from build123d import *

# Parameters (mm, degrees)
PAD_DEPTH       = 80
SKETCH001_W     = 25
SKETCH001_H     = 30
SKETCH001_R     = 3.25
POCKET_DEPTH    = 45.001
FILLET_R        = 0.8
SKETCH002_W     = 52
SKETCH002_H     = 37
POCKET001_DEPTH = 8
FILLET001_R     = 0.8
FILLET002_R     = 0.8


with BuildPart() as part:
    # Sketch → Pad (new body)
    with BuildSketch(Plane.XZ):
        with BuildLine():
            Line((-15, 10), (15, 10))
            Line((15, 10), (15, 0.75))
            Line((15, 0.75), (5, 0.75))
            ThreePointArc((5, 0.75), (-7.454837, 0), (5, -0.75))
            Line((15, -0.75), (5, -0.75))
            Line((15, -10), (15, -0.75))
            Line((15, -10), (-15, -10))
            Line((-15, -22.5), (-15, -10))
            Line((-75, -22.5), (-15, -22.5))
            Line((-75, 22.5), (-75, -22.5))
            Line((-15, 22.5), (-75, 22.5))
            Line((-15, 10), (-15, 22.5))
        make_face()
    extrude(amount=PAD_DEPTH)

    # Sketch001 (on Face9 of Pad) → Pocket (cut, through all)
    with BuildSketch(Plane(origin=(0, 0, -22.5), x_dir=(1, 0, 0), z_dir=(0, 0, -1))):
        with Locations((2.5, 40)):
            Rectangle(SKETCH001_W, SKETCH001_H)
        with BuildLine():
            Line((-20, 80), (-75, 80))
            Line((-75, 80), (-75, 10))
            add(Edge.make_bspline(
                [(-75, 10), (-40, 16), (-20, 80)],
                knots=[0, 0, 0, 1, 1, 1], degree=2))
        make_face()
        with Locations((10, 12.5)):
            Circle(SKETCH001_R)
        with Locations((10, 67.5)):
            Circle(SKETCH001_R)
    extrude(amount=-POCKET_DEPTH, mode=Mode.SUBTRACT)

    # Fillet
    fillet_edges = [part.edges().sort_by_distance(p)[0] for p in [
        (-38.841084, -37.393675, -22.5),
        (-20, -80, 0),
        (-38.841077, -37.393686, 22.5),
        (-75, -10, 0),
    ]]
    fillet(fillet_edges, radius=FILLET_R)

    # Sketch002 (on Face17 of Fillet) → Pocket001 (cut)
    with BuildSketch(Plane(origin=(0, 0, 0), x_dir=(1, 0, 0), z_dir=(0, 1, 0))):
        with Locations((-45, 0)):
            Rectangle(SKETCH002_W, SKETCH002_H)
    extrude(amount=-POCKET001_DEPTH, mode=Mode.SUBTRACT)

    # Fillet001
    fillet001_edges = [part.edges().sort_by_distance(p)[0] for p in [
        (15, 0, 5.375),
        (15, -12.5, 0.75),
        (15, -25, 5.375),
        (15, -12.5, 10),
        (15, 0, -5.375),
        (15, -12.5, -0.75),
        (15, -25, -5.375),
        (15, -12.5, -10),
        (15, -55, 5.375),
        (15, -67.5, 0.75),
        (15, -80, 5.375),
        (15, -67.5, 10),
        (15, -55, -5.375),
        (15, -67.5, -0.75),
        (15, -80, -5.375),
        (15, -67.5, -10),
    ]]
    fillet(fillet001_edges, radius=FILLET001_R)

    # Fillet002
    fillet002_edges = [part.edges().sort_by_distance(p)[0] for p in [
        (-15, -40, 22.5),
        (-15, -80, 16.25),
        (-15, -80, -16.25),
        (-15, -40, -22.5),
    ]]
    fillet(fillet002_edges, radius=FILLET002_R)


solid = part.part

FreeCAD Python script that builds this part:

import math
import FreeCAD as App
import Part
import Sketcher

V = App.Vector


def edges_at(feature, points):
    """Names of the edges that pass closest to the given points."""
    edges = feature.Shape.Edges
    near = lambda p: min(range(len(edges)), key=lambda i: edges[i].distToShape(Part.Vertex(*p))[0])
    return sorted({f"Edge{near(p) + 1}" for p in points})

doc = App.newDocument("Part")
body = doc.addObject("PartDesign::Body", "Body")

# Sketch on XZ plane
sketch1 = doc.addObject("Sketcher::SketchObject", "Sketch")
body.addObject(sketch1)
sketch1.AttachmentSupport = (doc.XZ_Plane, [""])
sketch1.MapMode = "FlatFace"
sketch1.addGeometry([
    Part.LineSegment(V(15, 10, 0), V(-15, 10, 0)),  # 0
    Part.LineSegment(V(-15, 10, 0), V(-15, 22.5, 0)),  # 1
    Part.LineSegment(V(-15, 22.5, 0), V(-75, 22.5, 0)),  # 2
    Part.LineSegment(V(-75, 22.5, 0), V(-75, -22.5, 0)),  # 3
    Part.LineSegment(V(-75, -22.5, 0), V(-15, -22.5, 0)),  # 4
    Part.LineSegment(V(-15, -22.5, 0), V(-15, -10, 0)),  # 5
    Part.LineSegment(V(-15, -10, 0), V(15, -10, 0)),  # 6
    Part.LineSegment(V(15, -10, 0), V(15, -0.8, 0)),  # 7
    Part.LineSegment(V(15, -0.8, 0), V(5, -0.8, 0)),  # 8
    Part.ArcOfCircle(Part.Circle(V(-1.2, 0, 0), V(0, 0, 1), 6.3), math.radians(7), math.radians(353)),  # 9
    Part.LineSegment(V(5, 0.8, 0), V(15, 0.8, 0)),  # 10
    Part.LineSegment(V(15, 0.8, 0), V(15, 10, 0)),  # 11
], False)
sketch1.addConstraint([
    Sketcher.Constraint("Coincident", 0, 2, 1, 1),
    Sketcher.Constraint("Coincident", 1, 2, 2, 1),
    Sketcher.Constraint("Coincident", 2, 2, 3, 1),
    Sketcher.Constraint("Coincident", 3, 2, 4, 1),
    Sketcher.Constraint("Coincident", 4, 2, 5, 1),
    Sketcher.Constraint("Coincident", 5, 2, 6, 1),
    Sketcher.Constraint("Coincident", 6, 2, 7, 1),
    Sketcher.Constraint("Coincident", 7, 2, 8, 1),
    Sketcher.Constraint("Coincident", 8, 2, 9, 2),
    Sketcher.Constraint("Coincident", 9, 1, 10, 1),
    Sketcher.Constraint("Coincident", 10, 2, 11, 1),
    Sketcher.Constraint("Coincident", 11, 2, 0, 1),
    Sketcher.Constraint("Horizontal", 0),
    Sketcher.Constraint("Vertical", 1),
    Sketcher.Constraint("Horizontal", 2),
    Sketcher.Constraint("Vertical", 3),
    Sketcher.Constraint("Horizontal", 4),
    Sketcher.Constraint("Vertical", 5),
    Sketcher.Constraint("Horizontal", 6),
    Sketcher.Constraint("Vertical", 7),
    Sketcher.Constraint("Horizontal", 8),
    Sketcher.Constraint("Horizontal", 10),
    Sketcher.Constraint("Vertical", 11),
    Sketcher.Constraint("Symmetric", 0, 2, 6, 2, -1, 1),
    Sketcher.Constraint("Symmetric", 1, 2, 4, 2, -1),
    Sketcher.Constraint("Symmetric", 8, 2, 9, 1, -1),
    Sketcher.Constraint("Vertical", 7, 2, 10, 2),
    Sketcher.Constraint("DistanceX", 0, 2, 0, 1, 30.0),
    Sketcher.Constraint("DistanceX", 2, 2, 2, 1, 60.0),
    Sketcher.Constraint("DistanceX", 8, 2, 8, 1, 10.0),
    Sketcher.Constraint("DistanceY", 3, 2, 3, 1, 45.0),
    Sketcher.Constraint("Radius", 9, 6.25),
    Sketcher.Constraint("DistanceY", 1, 1, 1, 2, 12.5),
    Sketcher.Constraint("DistanceY", 7, 1, 7, 2, 9.25),
])
pad1 = doc.addObject("PartDesign::Pad", "Pad")
body.addObject(pad1)
pad1.Profile = sketch1
pad1.Length = 80

# Sketch on XY plane
sketch2 = doc.addObject("Sketcher::SketchObject", "Sketch001")
body.addObject(sketch2)
sketch2.AttachmentSupport = (doc.XY_Plane, [""])
sketch2.MapMode = "FlatFace"
sketch2.AttachmentOffset = App.Placement(V(0, 0, -22.5), App.Rotation())
sketch2.addGeometry([
    Part.LineSegment(V(-10, -55, 0), V(-10, -25, 0)),  # 0
    Part.LineSegment(V(-10, -25, 0), V(15, -25, 0)),  # 1
    Part.LineSegment(V(15, -25, 0), V(15, -55, 0)),  # 2
    Part.LineSegment(V(15, -55, 0), V(-10, -55, 0)),  # 3
    Part.LineSegment(V(-20, -80, 0), V(-75, -80, 0)),  # 4
    Part.LineSegment(V(-75, -80, 0), V(-75, -10, 0)),  # 5
    Part.BSplineCurve([V(-75, -10, 0), V(-40, -16, 0), V(-20, -80, 0)], [3, 3], [0, 1], False, 2, [1, 1, 1], False),  # 6
    Part.Circle(V(10, -12.5, 0), V(0, 0, 1), 3.25),  # 7
    Part.Circle(V(10, -67.5, 0), V(0, 0, 1), 3.25),  # 8
], False)
sketch2.addConstraint([
    Sketcher.Constraint("Block", 6),
    Sketcher.Constraint("Coincident", 0, 2, 1, 1),
    Sketcher.Constraint("Coincident", 1, 2, 2, 1),
    Sketcher.Constraint("Coincident", 2, 2, 3, 1),
    Sketcher.Constraint("Coincident", 3, 2, 0, 1),
    Sketcher.Constraint("Coincident", 4, 2, 5, 1),
    Sketcher.Constraint("Coincident", 5, 2, 6, 1),
    Sketcher.Constraint("Coincident", 6, 2, 4, 1),
    Sketcher.Constraint("Vertical", 0),
    Sketcher.Constraint("Horizontal", 1),
    Sketcher.Constraint("Vertical", 2),
    Sketcher.Constraint("Horizontal", 3),
    Sketcher.Constraint("Horizontal", 4),
    Sketcher.Constraint("Vertical", 5),
    Sketcher.Constraint("Equal", 7, 8),
    Sketcher.Constraint("Vertical", 7, 3, 8, 3),
    Sketcher.Constraint("Diameter", 7, 6.5),
    Sketcher.Constraint("DistanceX", 1, 1, 1, 2, 25.0),
    Sketcher.Constraint("DistanceY", 0, 1, 0, 2, 30.0),
    Sketcher.Constraint("DistanceX", -1, 1, 7, 3, 10.0),
    Sketcher.Constraint("DistanceX", 0, 2, -1, 1, 10.0),
    Sketcher.Constraint("DistanceY", 0, 2, -1, 1, 25.0),
    Sketcher.Constraint("DistanceY", 8, 3, 7, 3, 55.0),
    Sketcher.Constraint("DistanceY", 7, 3, -1, 1, 12.5),
])
pocket1 = doc.addObject("PartDesign::Pocket", "Pocket")
body.addObject(pocket1)
pocket1.Profile = sketch2
pocket1.Type = "ThroughAll"
pocket1.Reversed = True
doc.recompute()

fillet = doc.addObject("PartDesign::Fillet", "Fillet")
body.addObject(fillet)
fillet.Base = (pocket1, edges_at(pocket1, [
    (-38.841, -37.394, -22.5),
    (-20, -80, 0),
    (-38.841, -37.394, 22.5),
    (-75, -10, 0),
]))
fillet.Radius = 0.8

# Sketch on XZ plane
sketch3 = doc.addObject("Sketcher::SketchObject", "Sketch002")
body.addObject(sketch3)
sketch3.AttachmentSupport = (doc.XZ_Plane, [""])
sketch3.MapMode = "FlatFace"
sketch3.addGeometry([
    Part.LineSegment(V(-71, -18, 0), V(-71, 18, 0)),
    Part.LineSegment(V(-71, 18, 0), V(-19, 18, 0)),
    Part.LineSegment(V(-19, 18, 0), V(-19, -18, 0)),
    Part.LineSegment(V(-19, -18, 0), V(-71, -18, 0)),
], False)
sketch3.addConstraint([
    Sketcher.Constraint("Coincident", 0, 2, 1, 1),
    Sketcher.Constraint("Coincident", 1, 2, 2, 1),
    Sketcher.Constraint("Coincident", 2, 2, 3, 1),
    Sketcher.Constraint("Coincident", 3, 2, 0, 1),
    Sketcher.Constraint("Vertical", 0),
    Sketcher.Constraint("Horizontal", 1),
    Sketcher.Constraint("Vertical", 2),
    Sketcher.Constraint("Horizontal", 3),
    Sketcher.Constraint("DistanceX", 1, 1, 1, 2, 52.0),
    Sketcher.Constraint("DistanceY", 0, 1, 0, 2, 37.0),
    Sketcher.Constraint("DistanceX", 0, 2, -1, 1, 71.0),
    Sketcher.Constraint("DistanceY", -1, 1, 0, 2, 18.5),
])
pocket2 = doc.addObject("PartDesign::Pocket", "Pocket001")
body.addObject(pocket2)
pocket2.Profile = sketch3
pocket2.Length = 8
pocket2.Reversed = True
doc.recompute()

fillet2 = doc.addObject("PartDesign::Fillet", "Fillet001")
body.addObject(fillet2)
fillet2.Base = (pocket2, edges_at(pocket2, [
    (15, 0, 5.375),
    (15, -12.5, 0.75),
    (15, -25, 5.375),
    (15, -12.5, 10),
    (15, 0, -5.375),
    (15, -12.5, -0.75),
    (15, -25, -5.375),
    (15, -12.5, -10),
    (15, -55, 5.375),
    (15, -67.5, 0.75),
    (15, -80, 5.375),
    (15, -67.5, 10),
    (15, -55, -5.375),
    (15, -67.5, -0.75),
    (15, -80, -5.375),
    (15, -67.5, -10),
]))
fillet2.Radius = 0.8
doc.recompute()

fillet3 = doc.addObject("PartDesign::Fillet", "Fillet002")
body.addObject(fillet3)
fillet3.Base = (fillet2, edges_at(fillet2, [
    (-15, -40, 22.5),
    (-15, -80, 16.25),
    (-15, -80, -16.25),
    (-15, -40, -22.5),
]))
fillet3.Radius = 0.8

doc.recompute()
